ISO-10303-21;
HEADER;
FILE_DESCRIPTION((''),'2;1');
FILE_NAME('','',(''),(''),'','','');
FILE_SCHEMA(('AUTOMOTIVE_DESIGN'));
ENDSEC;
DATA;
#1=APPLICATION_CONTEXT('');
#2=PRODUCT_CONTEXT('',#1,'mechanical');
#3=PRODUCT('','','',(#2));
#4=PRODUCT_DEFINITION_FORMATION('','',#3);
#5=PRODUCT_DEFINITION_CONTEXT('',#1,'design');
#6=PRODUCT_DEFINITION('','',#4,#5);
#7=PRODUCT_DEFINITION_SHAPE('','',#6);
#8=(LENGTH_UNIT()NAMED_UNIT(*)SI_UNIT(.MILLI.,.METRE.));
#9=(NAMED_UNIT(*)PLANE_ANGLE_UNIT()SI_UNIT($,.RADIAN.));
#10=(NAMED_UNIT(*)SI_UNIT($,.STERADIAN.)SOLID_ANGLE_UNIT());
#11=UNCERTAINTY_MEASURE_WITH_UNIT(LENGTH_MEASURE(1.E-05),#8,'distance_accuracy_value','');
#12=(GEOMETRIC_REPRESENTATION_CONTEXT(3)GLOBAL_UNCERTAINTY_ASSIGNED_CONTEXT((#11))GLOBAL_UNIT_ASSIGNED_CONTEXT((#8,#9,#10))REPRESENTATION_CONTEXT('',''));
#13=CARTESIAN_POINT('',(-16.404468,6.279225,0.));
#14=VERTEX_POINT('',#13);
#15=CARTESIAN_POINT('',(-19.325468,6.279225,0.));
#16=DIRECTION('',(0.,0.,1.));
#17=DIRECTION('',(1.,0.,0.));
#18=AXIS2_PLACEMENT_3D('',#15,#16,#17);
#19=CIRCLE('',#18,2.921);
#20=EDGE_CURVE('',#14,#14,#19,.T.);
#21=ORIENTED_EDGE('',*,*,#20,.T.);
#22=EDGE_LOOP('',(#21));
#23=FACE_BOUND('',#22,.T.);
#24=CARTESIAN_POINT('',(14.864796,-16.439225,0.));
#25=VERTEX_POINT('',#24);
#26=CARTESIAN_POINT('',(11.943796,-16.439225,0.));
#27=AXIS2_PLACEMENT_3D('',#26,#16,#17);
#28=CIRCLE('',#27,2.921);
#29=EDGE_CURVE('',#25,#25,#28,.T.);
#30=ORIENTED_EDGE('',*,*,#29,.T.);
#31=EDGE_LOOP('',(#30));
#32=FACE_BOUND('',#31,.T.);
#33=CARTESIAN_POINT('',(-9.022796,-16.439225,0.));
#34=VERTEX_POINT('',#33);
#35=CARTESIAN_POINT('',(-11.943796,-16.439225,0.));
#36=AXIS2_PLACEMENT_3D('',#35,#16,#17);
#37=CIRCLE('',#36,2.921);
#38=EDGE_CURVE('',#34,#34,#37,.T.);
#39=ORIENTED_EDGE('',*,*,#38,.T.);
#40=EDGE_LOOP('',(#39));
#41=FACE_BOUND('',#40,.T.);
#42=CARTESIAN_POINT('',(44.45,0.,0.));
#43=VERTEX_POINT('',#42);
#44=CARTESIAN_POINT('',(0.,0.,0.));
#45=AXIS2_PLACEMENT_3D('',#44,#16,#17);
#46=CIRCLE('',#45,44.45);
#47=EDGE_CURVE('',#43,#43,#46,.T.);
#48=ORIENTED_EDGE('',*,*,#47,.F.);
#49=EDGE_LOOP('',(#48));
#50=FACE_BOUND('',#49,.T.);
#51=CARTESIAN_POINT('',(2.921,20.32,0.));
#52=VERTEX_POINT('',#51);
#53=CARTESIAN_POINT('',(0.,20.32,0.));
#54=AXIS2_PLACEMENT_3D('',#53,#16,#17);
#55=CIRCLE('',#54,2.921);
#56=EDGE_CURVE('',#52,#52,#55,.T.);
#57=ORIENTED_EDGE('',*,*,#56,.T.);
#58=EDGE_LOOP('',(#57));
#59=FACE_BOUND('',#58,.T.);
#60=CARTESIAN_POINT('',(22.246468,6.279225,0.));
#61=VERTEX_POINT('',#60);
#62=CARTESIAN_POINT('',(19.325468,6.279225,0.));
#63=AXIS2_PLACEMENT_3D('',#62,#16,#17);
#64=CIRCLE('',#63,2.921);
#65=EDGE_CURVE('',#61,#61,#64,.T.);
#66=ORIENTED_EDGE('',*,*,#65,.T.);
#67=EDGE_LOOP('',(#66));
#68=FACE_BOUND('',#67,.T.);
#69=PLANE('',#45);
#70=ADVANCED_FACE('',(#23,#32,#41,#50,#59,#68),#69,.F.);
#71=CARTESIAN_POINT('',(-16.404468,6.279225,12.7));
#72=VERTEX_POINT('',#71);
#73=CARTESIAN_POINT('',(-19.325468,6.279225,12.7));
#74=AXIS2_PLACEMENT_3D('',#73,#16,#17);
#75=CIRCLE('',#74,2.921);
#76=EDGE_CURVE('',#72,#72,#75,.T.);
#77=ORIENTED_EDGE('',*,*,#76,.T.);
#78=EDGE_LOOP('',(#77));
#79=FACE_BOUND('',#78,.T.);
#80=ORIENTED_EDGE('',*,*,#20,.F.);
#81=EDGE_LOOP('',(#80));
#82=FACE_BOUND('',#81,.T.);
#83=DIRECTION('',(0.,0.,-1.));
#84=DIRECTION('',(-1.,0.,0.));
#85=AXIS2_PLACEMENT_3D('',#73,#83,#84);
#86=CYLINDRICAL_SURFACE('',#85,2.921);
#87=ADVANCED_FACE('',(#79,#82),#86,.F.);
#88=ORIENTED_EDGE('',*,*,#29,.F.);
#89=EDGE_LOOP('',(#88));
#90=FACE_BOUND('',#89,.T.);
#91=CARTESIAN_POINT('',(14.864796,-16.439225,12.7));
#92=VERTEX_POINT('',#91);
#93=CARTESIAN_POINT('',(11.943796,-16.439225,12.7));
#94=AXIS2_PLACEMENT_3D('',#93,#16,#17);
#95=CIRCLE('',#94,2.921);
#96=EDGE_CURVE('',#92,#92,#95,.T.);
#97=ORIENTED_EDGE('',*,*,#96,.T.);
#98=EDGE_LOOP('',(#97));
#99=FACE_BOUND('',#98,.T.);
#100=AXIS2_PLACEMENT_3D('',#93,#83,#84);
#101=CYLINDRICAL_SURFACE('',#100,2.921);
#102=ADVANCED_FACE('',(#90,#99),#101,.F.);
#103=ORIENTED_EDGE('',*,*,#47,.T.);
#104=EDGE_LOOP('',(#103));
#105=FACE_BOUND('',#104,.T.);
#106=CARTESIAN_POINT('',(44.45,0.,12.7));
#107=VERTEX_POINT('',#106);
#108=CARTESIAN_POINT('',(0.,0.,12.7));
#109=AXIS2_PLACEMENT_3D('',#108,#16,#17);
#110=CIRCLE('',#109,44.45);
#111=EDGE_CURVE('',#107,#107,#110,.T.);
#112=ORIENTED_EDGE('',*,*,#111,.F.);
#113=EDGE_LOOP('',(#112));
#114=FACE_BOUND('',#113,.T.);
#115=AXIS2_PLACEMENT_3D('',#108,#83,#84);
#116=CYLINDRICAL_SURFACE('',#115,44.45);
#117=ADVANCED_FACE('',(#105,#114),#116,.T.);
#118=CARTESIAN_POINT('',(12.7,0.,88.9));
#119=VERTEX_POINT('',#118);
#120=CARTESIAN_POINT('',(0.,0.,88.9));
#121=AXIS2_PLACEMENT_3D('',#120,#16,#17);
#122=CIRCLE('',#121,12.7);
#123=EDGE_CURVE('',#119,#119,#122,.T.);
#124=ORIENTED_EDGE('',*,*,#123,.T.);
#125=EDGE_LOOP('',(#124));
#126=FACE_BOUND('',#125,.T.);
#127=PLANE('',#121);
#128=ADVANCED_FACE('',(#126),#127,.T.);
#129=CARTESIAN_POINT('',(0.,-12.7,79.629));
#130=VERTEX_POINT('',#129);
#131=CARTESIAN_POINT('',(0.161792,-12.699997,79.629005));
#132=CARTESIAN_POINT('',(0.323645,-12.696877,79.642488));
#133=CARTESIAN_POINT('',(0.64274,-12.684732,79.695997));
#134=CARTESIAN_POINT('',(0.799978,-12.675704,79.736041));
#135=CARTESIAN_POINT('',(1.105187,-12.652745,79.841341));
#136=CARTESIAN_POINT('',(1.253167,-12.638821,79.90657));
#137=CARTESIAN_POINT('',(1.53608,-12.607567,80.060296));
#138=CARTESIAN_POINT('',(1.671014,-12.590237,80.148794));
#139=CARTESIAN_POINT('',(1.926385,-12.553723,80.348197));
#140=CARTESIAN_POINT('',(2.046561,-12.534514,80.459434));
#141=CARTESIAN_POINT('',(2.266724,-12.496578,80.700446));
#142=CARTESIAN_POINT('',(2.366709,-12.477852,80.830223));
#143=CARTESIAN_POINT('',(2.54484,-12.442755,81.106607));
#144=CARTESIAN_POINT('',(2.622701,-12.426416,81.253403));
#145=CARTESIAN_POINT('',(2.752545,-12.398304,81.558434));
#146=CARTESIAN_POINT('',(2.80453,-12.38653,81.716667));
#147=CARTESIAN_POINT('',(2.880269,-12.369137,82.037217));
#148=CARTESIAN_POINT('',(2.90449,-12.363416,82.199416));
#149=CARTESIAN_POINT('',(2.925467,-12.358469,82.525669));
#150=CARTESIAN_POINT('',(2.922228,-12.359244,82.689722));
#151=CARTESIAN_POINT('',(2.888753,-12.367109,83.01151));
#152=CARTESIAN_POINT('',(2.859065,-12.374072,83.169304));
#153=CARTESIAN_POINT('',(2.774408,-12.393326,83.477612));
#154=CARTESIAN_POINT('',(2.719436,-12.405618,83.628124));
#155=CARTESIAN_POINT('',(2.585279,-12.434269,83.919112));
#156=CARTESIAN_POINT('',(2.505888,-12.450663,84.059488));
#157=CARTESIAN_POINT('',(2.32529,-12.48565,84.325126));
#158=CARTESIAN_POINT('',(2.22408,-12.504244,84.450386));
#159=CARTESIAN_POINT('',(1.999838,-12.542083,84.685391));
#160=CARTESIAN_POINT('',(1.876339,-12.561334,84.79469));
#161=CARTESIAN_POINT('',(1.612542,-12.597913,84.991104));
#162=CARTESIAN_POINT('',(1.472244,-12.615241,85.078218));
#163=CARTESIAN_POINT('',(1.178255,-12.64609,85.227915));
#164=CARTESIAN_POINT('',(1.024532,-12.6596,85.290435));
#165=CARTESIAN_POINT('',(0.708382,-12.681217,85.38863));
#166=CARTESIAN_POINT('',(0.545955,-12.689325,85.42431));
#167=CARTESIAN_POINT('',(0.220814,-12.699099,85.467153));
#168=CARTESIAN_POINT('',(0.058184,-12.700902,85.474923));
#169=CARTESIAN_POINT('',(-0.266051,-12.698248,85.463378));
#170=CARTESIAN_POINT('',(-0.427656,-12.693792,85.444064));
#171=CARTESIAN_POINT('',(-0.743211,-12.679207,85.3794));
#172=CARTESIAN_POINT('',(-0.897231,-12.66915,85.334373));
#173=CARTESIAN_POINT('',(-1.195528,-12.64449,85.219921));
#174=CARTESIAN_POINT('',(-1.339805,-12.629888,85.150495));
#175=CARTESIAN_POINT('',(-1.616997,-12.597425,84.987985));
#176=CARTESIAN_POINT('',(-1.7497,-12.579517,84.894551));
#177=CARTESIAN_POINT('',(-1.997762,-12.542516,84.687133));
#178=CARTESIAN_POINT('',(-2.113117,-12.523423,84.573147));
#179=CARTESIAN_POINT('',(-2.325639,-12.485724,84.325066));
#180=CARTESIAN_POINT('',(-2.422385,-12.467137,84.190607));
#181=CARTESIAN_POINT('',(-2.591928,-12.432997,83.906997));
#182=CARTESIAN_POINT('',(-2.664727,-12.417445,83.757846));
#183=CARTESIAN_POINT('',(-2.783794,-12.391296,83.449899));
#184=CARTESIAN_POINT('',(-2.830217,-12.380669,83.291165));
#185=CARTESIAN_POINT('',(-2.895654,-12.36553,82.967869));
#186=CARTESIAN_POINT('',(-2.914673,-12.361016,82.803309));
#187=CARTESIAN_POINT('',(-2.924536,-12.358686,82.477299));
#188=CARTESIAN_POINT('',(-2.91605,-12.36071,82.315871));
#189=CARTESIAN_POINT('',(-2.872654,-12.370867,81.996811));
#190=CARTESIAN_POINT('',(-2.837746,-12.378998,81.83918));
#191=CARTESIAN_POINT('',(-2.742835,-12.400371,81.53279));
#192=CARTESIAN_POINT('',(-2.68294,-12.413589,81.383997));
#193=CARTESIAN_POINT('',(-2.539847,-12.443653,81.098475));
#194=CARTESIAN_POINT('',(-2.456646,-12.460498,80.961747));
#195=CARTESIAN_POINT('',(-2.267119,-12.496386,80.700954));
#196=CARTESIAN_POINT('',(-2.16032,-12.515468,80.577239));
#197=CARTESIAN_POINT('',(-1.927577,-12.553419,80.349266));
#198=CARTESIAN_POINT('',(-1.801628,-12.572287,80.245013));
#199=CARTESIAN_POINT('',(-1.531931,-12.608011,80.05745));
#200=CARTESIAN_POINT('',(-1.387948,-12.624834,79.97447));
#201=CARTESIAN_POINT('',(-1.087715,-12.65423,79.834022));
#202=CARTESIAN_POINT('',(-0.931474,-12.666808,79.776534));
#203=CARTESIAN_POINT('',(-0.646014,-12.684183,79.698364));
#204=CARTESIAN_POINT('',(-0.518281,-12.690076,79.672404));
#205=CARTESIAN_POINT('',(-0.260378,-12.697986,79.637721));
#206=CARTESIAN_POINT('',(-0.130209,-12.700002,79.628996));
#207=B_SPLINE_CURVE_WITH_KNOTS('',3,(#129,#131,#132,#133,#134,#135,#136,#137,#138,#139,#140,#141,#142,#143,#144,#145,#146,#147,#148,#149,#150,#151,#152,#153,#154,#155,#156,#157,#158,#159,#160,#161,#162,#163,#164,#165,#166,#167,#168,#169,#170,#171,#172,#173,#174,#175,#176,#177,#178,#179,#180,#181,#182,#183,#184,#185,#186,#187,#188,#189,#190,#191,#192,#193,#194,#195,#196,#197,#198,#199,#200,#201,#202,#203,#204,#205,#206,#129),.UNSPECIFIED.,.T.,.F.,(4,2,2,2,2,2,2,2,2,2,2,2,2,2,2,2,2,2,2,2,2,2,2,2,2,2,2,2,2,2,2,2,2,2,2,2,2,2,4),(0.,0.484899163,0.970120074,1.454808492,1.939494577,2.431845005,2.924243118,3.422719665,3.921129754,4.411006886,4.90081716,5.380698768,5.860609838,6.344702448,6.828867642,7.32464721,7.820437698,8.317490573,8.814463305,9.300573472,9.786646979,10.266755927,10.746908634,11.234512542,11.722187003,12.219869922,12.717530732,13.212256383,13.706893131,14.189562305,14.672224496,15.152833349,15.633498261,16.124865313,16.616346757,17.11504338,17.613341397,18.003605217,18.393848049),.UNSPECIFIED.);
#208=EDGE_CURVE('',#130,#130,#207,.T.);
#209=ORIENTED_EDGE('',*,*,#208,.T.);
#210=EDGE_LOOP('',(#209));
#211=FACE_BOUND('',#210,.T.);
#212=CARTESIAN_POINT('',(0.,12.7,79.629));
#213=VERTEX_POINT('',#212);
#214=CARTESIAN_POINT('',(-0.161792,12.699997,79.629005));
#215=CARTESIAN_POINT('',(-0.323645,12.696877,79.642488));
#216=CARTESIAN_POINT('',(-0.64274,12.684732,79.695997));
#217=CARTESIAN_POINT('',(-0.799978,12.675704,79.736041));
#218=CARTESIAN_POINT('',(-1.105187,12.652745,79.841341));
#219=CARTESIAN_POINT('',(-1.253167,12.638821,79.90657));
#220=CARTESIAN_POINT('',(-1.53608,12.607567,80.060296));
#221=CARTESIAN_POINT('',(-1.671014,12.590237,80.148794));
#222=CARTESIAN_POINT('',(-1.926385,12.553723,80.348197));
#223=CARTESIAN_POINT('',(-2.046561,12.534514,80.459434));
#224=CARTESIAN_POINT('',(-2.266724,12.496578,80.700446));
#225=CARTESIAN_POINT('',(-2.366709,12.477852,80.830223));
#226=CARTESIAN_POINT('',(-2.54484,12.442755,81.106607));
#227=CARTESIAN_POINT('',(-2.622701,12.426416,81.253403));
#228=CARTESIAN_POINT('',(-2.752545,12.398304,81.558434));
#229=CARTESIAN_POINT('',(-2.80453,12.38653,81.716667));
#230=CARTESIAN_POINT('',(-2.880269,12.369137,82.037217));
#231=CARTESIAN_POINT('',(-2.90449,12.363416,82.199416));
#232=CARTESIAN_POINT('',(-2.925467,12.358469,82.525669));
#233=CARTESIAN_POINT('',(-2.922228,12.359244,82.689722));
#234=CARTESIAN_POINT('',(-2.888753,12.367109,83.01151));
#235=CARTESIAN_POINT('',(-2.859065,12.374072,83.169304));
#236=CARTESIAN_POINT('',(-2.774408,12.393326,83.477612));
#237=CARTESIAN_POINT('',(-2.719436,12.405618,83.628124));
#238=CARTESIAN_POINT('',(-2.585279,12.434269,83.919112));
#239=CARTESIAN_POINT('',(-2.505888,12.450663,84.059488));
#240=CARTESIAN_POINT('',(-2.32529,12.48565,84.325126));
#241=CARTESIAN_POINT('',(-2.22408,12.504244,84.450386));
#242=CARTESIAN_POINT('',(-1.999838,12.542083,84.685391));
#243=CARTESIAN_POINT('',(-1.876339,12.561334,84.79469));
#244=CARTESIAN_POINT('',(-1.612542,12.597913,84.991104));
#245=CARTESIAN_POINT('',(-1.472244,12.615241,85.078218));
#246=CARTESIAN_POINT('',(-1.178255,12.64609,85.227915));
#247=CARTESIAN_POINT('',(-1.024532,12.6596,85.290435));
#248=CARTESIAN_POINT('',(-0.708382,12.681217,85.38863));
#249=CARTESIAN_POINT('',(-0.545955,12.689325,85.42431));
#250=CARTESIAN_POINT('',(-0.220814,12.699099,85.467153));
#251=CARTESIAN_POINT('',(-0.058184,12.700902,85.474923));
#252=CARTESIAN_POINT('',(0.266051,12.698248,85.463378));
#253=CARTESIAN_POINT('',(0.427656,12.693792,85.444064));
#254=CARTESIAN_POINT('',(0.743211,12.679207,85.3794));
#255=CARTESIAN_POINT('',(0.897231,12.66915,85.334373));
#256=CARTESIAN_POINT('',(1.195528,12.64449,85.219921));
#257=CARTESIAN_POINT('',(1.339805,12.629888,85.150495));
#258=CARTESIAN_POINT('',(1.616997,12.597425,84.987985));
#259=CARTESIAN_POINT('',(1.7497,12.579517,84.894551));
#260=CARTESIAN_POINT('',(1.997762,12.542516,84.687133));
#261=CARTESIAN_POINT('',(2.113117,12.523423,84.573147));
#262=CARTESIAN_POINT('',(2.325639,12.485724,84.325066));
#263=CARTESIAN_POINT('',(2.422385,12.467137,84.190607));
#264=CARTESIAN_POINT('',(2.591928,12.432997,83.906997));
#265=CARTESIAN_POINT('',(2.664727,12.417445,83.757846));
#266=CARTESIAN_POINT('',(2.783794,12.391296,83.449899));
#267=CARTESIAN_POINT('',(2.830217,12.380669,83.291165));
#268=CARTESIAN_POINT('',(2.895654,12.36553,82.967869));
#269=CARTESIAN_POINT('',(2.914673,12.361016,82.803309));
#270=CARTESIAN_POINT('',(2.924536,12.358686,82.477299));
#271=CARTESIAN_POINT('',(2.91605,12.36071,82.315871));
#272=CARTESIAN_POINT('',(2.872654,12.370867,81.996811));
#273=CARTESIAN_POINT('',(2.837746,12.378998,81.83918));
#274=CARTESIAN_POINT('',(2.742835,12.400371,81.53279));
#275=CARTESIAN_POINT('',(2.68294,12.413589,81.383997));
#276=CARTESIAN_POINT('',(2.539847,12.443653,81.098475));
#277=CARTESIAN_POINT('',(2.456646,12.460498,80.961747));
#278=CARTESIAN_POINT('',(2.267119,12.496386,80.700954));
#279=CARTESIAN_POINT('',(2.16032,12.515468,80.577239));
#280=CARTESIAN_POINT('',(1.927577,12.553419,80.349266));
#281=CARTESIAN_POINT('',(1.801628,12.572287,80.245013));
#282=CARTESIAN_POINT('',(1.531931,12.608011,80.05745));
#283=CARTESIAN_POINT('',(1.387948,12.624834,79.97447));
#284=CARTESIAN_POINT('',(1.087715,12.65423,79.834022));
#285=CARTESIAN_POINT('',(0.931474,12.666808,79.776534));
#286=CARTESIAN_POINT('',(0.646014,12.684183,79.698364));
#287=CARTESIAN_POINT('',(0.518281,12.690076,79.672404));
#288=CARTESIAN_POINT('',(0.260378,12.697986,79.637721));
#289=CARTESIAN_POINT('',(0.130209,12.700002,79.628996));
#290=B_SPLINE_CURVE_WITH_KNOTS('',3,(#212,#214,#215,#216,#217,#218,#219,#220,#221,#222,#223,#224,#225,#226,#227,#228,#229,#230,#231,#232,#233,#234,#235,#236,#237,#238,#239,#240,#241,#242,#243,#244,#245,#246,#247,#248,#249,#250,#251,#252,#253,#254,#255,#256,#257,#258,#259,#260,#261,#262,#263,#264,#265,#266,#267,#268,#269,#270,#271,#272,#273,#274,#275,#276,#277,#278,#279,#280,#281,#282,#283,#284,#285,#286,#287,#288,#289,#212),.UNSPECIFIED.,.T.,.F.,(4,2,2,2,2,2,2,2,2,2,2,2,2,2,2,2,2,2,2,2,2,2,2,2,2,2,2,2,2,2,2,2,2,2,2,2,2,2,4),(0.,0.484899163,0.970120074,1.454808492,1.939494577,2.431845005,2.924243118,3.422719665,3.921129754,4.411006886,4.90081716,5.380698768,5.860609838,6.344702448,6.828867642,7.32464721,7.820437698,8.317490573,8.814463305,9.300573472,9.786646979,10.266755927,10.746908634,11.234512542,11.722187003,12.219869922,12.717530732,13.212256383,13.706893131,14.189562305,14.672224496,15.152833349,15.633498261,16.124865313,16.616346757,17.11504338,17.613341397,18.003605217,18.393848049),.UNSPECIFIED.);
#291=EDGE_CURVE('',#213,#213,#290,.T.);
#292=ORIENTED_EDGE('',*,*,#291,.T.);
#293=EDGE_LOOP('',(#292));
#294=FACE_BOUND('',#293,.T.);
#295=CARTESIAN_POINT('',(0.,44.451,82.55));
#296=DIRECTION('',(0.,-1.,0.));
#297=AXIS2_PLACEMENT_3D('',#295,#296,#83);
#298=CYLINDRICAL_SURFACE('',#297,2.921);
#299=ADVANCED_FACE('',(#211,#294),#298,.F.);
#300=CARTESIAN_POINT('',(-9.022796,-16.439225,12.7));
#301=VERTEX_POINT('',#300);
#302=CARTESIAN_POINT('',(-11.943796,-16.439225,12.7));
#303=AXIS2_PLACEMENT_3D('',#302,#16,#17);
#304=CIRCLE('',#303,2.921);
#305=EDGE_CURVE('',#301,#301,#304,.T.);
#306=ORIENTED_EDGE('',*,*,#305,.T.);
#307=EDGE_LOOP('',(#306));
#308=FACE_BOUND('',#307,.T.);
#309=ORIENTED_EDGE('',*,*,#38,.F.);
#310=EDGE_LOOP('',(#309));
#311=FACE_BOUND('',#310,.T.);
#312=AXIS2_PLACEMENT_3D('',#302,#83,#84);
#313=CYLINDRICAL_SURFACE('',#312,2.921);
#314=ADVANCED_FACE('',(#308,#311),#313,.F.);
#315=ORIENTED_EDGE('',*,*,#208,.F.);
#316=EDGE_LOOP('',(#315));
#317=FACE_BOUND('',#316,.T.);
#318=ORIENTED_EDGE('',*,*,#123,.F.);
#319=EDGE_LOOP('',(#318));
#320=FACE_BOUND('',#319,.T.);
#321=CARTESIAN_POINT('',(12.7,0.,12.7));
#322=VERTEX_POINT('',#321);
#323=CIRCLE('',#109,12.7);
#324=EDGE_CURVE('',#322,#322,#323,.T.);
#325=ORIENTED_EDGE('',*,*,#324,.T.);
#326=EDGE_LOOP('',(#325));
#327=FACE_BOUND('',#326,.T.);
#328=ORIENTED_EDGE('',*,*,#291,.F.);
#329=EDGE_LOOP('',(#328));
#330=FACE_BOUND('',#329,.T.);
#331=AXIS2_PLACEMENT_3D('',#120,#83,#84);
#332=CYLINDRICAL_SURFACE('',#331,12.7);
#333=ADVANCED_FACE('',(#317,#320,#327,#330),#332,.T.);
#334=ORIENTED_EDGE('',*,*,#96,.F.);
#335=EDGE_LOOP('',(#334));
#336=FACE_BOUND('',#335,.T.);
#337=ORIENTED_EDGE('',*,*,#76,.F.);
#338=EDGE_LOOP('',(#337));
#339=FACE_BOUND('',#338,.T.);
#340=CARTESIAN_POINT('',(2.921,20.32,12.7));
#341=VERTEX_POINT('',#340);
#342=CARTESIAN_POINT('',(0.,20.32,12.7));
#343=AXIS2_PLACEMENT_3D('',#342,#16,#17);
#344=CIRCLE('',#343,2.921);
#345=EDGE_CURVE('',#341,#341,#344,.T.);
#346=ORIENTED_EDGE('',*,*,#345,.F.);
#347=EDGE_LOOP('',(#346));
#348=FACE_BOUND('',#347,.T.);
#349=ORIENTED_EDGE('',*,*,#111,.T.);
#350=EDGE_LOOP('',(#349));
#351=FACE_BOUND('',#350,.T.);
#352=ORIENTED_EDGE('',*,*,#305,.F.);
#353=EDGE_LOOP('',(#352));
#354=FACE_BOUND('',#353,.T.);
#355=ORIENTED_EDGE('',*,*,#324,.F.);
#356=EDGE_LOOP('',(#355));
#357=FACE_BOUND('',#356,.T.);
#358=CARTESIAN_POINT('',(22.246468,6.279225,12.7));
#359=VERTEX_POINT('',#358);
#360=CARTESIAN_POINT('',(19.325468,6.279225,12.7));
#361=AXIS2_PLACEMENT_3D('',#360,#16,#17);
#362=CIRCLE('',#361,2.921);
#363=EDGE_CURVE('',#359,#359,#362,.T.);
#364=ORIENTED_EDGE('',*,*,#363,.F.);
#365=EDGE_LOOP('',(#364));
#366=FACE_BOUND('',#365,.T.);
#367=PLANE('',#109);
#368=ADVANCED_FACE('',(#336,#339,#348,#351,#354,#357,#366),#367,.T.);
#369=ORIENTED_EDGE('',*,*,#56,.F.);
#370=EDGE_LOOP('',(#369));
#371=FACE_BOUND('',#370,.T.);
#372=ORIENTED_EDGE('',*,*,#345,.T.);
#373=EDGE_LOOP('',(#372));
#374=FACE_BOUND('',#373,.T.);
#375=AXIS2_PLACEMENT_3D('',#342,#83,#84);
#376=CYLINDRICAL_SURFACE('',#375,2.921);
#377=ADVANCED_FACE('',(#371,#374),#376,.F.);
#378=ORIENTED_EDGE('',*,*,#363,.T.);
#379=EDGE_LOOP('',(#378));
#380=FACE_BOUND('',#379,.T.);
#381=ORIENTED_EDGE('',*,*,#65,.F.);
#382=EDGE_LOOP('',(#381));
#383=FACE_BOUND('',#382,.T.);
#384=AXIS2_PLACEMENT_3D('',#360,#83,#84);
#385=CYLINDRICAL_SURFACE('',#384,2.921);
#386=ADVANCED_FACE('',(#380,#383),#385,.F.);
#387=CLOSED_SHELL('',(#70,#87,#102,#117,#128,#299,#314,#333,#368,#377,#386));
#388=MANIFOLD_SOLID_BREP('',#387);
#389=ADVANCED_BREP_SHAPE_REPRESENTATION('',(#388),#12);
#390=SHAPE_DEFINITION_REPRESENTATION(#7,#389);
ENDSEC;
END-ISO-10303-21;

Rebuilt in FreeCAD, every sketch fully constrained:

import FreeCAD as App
import Part
import Sketcher
from FreeCAD import Vector
Q = App.Units.Quantity

doc = App.newDocument("Part")
body = doc.addObject("PartDesign::Body", "Body")

# Sketch on XY plane
sketch1 = body.newObject("Sketcher::SketchObject", "Sketch")
sketch1.AttachmentSupport = (doc.getObject("XY_Plane"), [""])
sketch1.MapMode = "FlatFace"
sketch1.addGeometry(Part.Circle(Vector(0, 0, 0), Vector(0, 0, 1), 44.5), False)
sketch1.addGeometry(Part.Circle(Vector(-11.9, -16.4, 0), Vector(0, 0, 1), 2.9), False)
sketch1.addGeometry(Part.Circle(Vector(11.9, -16.4, 0), Vector(0, 0, 1), 2.9), False)
sketch1.addGeometry(Part.Circle(Vector(-19.3, 6.3, 0), Vector(0, 0, 1), 2.9), False)
sketch1.addGeometry(Part.Circle(Vector(0, 20.3, 0), Vector(0, 0, 1), 2.9), False)
sketch1.addGeometry(Part.Circle(Vector(19.3, 6.3, 0), Vector(0, 0, 1), 2.9), False)
sketch1.addConstraint(Sketcher.Constraint("Coincident", 0, 3, -1, 1))
sketch1.addConstraint(Sketcher.Constraint("Equal", 1, 2))
sketch1.addConstraint(Sketcher.Constraint("Equal", 2, 3))
sketch1.addConstraint(Sketcher.Constraint("Equal", 3, 4))
sketch1.addConstraint(Sketcher.Constraint("Equal", 4, 5))
sketch1.addConstraint(Sketcher.Constraint("Symmetric", 1, 3, 2, 3, -2))
sketch1.addConstraint(Sketcher.Constraint("Symmetric", 3, 3, 5, 3, -2))
sketch1.addConstraint(Sketcher.Constraint("PointOnObject", 4, 3, -2))
sketch1.addConstraint(Sketcher.Constraint("Diameter", 0, Q("3.5 in")))
sketch1.addConstraint(Sketcher.Constraint("Diameter", 1, Q("0.23 in")))
sketch1.addConstraint(Sketcher.Constraint("DistanceY", -1, 1, 4, 3, Q("0.8 in")))
sketch1.addConstraint(Sketcher.Constraint("DistanceX", 3, 3, -1, 1, Q("19.325468 mm")))
sketch1.addConstraint(Sketcher.Constraint("DistanceY", 1, 3, 3, 3, Q("22.718451 mm")))
sketch1.addConstraint(Sketcher.Constraint("DistanceX", 1, 3, -1, 1, Q("11.943796 mm")))
sketch1.addConstraint(Sketcher.Constraint("DistanceY", 1, 3, -1, 1, Q("16.439225 mm")))
pad1 = body.newObject("PartDesign::Pad", "Pad")
pad1.Profile = sketch1
pad1.Length = Q("0.5 in")

# Sketch on XY plane
sketch2 = body.newObject("Sketcher::SketchObject", "Sketch001")
sketch2.AttachmentSupport = (doc.getObject("XY_Plane"), [""])
sketch2.MapMode = "FlatFace"
sketch2.AttachmentOffset = App.Placement(Vector(0, 0, 0.5 * 25.4), App.Rotation())
sketch2.addGeometry(Part.Circle(Vector(0, 0, 0), Vector(0, 0, 1), 13), False)
sketch2.addConstraint(Sketcher.Constraint("Coincident", 0, 3, -1, 1))
sketch2.addConstraint(Sketcher.Constraint("Diameter", 0, Q("1 in")))
pad2 = body.newObject("PartDesign::Pad", "Pad001")
pad2.Profile = sketch2
pad2.Length = Q("3 in")

# Sketch on XZ plane
sketch3 = body.newObject("Sketcher::SketchObject", "Sketch002")
sketch3.AttachmentSupport = (doc.getObject("XZ_Plane"), [""])
sketch3.MapMode = "FlatFace"
sketch3.AttachmentOffset = App.Placement(Vector(0, 0, 0.5 * 25.4), App.Rotation())
sketch3.addGeometry(Part.Circle(Vector(0, 82.5, 0), Vector(0, 0, 1), 2.9), False)
sketch3.addConstraint(Sketcher.Constraint("PointOnObject", 0, 3, -2))
sketch3.addConstraint(Sketcher.Constraint("Diameter", 0, Q("0.23 in")))
sketch3.addConstraint(Sketcher.Constraint("DistanceY", -1, 1, 0, 3, Q("3.25 in")))
pocket1 = body.newObject("PartDesign::Pocket", "Pocket")
pocket1.Profile = sketch3
pocket1.Length = Q("1 in")

doc.recompute()
